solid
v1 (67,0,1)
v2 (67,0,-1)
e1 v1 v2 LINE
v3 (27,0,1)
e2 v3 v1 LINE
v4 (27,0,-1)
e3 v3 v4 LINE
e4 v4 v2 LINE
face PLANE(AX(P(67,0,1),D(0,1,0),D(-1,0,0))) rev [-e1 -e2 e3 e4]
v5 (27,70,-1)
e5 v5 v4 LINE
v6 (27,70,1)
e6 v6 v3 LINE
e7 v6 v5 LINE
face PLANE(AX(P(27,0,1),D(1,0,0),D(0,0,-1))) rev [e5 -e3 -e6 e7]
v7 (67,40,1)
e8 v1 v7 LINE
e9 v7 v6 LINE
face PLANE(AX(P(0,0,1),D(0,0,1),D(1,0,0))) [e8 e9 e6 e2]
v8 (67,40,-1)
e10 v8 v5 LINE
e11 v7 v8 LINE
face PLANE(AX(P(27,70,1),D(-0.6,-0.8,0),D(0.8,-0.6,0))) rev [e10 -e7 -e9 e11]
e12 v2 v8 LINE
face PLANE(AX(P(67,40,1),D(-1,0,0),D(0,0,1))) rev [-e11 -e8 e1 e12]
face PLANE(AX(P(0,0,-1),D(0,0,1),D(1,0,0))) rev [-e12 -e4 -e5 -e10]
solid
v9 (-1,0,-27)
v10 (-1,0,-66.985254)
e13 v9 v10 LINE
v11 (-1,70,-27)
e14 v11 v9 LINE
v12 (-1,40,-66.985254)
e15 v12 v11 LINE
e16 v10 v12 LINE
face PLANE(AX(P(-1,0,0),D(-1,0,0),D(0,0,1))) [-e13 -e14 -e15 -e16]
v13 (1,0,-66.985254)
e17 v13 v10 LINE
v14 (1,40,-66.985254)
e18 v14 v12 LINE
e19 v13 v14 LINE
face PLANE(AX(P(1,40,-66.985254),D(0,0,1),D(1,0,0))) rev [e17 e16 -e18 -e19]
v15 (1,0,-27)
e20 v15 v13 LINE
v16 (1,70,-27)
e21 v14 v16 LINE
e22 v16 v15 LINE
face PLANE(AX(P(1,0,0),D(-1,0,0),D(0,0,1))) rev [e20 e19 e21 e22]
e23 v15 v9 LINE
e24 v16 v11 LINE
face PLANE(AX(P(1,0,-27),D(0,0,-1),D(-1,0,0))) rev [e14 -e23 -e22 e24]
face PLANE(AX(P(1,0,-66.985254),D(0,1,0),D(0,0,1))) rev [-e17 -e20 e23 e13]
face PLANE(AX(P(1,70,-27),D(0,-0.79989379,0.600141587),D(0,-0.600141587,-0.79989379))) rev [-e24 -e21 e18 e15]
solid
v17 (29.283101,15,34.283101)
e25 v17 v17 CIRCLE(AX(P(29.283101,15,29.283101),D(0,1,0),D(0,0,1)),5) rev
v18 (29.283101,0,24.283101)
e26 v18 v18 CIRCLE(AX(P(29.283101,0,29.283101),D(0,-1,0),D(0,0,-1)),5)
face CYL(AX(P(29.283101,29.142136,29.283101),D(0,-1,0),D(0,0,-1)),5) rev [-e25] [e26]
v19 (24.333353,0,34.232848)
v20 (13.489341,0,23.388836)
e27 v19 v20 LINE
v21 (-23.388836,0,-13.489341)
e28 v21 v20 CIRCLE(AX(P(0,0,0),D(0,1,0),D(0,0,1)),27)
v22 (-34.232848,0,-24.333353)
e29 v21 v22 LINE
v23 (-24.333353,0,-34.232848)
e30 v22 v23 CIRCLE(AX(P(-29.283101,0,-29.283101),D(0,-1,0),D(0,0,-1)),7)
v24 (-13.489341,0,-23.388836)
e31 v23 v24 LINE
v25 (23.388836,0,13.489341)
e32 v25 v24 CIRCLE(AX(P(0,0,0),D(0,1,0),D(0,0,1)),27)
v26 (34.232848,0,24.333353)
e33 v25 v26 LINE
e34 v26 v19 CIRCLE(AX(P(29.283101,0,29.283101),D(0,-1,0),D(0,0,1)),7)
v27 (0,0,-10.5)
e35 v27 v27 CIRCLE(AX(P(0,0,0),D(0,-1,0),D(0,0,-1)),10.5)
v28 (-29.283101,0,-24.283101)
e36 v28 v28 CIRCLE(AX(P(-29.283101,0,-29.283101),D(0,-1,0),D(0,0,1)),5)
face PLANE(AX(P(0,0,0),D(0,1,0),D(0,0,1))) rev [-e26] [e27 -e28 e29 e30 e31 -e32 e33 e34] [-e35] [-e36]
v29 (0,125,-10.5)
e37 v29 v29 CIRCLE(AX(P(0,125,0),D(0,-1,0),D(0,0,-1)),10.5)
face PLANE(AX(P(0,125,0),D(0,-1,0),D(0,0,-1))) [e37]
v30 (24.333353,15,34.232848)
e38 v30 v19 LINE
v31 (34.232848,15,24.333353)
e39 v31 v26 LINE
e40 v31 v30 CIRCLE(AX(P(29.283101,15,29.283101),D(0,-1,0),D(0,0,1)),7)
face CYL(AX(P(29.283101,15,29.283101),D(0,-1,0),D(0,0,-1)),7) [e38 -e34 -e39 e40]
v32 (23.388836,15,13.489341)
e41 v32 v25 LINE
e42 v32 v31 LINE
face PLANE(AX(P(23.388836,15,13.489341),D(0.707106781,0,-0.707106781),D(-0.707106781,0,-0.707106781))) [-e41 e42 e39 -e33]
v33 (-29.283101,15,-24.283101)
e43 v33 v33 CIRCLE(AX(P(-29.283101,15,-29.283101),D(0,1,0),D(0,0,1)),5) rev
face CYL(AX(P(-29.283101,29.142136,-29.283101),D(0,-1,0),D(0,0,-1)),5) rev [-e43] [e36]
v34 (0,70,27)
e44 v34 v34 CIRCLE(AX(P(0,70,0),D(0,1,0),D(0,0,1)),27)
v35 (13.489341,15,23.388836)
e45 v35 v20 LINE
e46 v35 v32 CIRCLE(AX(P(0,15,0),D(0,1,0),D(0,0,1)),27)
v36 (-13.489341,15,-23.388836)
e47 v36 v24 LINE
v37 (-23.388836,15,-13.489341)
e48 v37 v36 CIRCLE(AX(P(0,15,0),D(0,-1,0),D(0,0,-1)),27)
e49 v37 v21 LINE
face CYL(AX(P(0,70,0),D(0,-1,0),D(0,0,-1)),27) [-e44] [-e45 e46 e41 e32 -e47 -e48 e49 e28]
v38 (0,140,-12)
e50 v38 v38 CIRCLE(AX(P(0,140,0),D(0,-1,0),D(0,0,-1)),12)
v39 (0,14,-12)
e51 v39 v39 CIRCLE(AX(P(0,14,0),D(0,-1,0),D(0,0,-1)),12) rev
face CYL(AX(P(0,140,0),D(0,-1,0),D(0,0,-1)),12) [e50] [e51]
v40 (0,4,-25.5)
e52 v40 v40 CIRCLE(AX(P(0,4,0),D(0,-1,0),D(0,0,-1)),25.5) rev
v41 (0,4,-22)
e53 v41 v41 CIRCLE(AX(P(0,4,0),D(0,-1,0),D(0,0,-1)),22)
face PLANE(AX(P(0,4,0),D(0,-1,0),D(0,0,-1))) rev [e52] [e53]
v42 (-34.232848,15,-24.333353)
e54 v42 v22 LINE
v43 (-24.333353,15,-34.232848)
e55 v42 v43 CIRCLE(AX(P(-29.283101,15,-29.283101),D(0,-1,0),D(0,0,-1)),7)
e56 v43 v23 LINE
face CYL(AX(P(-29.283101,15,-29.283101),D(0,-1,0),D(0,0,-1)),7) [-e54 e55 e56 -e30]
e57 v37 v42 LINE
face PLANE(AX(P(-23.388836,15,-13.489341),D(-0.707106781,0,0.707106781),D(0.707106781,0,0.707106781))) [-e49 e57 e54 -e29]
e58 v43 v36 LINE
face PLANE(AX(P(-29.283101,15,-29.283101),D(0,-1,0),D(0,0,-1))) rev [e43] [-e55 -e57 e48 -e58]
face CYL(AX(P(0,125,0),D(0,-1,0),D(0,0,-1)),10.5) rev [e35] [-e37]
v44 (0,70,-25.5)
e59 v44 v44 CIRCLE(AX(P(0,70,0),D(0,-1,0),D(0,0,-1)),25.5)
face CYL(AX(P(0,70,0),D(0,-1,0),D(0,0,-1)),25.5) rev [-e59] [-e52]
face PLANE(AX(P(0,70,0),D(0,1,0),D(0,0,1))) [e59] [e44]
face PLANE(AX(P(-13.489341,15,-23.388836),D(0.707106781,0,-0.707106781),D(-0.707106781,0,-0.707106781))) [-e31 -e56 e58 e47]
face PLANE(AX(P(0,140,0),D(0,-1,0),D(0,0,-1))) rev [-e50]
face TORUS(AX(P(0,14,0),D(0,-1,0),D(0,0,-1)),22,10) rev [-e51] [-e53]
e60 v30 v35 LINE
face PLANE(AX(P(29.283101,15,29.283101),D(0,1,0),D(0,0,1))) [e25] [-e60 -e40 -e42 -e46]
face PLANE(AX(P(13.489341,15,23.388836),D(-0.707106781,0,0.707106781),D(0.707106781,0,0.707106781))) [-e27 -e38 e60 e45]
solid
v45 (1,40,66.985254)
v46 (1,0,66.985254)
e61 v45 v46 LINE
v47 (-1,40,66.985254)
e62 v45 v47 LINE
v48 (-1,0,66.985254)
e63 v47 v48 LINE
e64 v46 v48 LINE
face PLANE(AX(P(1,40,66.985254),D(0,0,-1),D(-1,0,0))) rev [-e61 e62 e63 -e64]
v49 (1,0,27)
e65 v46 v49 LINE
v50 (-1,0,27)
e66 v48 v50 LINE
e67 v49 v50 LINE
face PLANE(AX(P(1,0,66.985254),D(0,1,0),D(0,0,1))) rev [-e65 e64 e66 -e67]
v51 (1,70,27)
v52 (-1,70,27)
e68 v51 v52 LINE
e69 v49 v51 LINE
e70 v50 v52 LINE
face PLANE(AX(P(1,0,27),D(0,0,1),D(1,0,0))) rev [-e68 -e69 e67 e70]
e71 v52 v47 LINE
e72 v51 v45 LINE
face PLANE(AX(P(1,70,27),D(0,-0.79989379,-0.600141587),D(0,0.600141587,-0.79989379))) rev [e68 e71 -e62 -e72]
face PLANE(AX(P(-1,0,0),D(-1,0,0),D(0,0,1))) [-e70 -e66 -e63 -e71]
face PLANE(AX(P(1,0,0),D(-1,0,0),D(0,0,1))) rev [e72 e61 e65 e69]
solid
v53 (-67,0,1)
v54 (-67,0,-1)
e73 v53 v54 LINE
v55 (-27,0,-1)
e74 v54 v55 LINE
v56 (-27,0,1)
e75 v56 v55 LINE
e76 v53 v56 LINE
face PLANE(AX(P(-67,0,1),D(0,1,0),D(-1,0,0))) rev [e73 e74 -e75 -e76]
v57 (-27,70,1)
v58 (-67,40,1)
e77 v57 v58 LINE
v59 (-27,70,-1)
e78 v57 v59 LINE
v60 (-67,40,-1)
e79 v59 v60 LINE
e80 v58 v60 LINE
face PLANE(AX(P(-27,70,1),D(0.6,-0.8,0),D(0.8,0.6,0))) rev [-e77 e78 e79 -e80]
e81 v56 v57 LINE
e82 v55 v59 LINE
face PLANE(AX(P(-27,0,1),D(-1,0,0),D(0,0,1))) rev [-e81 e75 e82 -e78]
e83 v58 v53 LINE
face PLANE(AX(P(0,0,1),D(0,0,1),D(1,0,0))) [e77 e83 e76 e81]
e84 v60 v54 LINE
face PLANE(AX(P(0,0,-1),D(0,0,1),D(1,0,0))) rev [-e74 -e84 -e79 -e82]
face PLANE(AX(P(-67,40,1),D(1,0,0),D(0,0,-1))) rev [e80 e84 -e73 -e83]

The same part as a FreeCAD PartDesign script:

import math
import FreeCAD as App
import Part
import Sketcher
Q = App.Units.Quantity


def edges_at(feature, points):
    """Names of the edges that pass closest to the given points."""
    edges = feature.Shape.Edges
    near = lambda p: min(range(len(edges)), key=lambda i: edges[i].distToShape(Part.Vertex(*p))[0])
    return sorted({f"Edge{near(p) + 1}" for p in points})


def add_polygon(sketch, points):
    """Adds a closed chain of lines whose ends are joined by coincident constraints."""
    first, n = sketch.GeometryCount, len(points)
    for a, b in zip(points, points[1:] + points[:1]):
        sketch.addGeometry(Part.LineSegment(App.Vector(*a, 0), App.Vector(*b, 0)), False)
    for i in range(n):
        sketch.addConstraint(Sketcher.Constraint("Coincident", first + i, 2, first + (i + 1) % n, 1))

doc = App.newDocument("Part")
params = doc.addObject("Spreadsheet::Sheet", "Params")
for row, (alias, value) in enumerate([
    ("sketch1_diameter", "54 mm"),
    ("pad1_length", "70 mm"),
    ("sketch2_diameter", "51 mm"),
    ("sketch3_diameter", "54 mm"),
    ("pad2_length", "4 mm"),
    ("sketch4_diameter", "24 mm"),
    ("pad3_length", "140 mm"),
    ("sketch5_diameter", "21 mm"),
    ("pocket2_length", "125 mm"),
    ("fillet_radius", "10 mm"),
    ("sketch6_radius", "7 mm"),
    ("pad4_length", "15 mm"),
    ("sketch7_diameter", "10 mm"),
    ("pocket3_length", "15 mm"),
    ("sketch8_width", "40 mm"),
    ("sketch8_height", "70 mm"),
    ("pad5_length", "2 mm"),
    ("sketch9_width", "40 mm"),
    ("sketch9_height", "70 mm"),
    ("pad6_length", "2 mm"),
    ("sketch10_width", "40 mm"),
    ("sketch10_width2", "70 mm"),
    ("pad7_length", "2 mm"),
    ("sketch11_width", "70 mm"),
    ("sketch11_width2", "40 mm"),
    ("pad8_length", "2 mm"),
], start=1):
    params.set(f"A{row}", alias)
    params.set(f"B{row}", "=" + value)
    params.setAlias(f"B{row}", alias)

body = doc.addObject("PartDesign::Body", "Body")

sketch1 = body.newObject("Sketcher::SketchObject", "Sketch")
sketch1.AttachmentSupport = (doc.getObject("XZ_Plane"), [""])
sketch1.MapMode = "FlatFace"
sketch1.addGeometry(Part.Circle(App.Vector(0, 0, 0), App.Vector(0, 0, 1), 27), False)
sketch1.addConstraint([
    Sketcher.Constraint("Coincident", 0, 3, -1, 1),
    Sketcher.Constraint("Diameter", 0, Q("54 mm")),
])
sketch1.setExpression("Constraints[1]", "Params.sketch1_diameter")
pad1 = body.newObject("PartDesign::Pad", "Pad")
pad1.Profile = sketch1
pad1.setExpression("Length", "Params.pad1_length")
pad1.Reversed = True

sketch2 = body.newObject("Sketcher::SketchObject", "Sketch001")
sketch2.AttachmentSupport = (doc.getObject("XZ_Plane"), [""])
sketch2.MapMode = "FlatFace"
sketch2.addGeometry(Part.Circle(App.Vector(0, 0, 0), App.Vector(0, 0, 1), 25.5), False)
sketch2.addConstraint([
    Sketcher.Constraint("Coincident", 0, 3, -1, 1),
    Sketcher.Constraint("Diameter", 0, Q("51 mm")),
])
sketch2.setExpression("Constraints[1]", "Params.sketch2_diameter")
pocket1 = body.newObject("PartDesign::Pocket", "Pocket")
pocket1.Profile = sketch2
pocket1.Type = "ThroughAll"

sketch3 = body.newObject("Sketcher::SketchObject", "Sketch002")
sketch3.AttachmentSupport = (doc.getObject("XZ_Plane"), [""])
sketch3.MapMode = "FlatFace"
sketch3.addGeometry(Part.Circle(App.Vector(0, 0, 0), App.Vector(0, 0, 1), 27), False)
sketch3.addConstraint([
    Sketcher.Constraint("Coincident", 0, 3, -1, 1),
    Sketcher.Constraint("Diameter", 0, Q("54 mm")),
])
sketch3.setExpression("Constraints[1]", "Params.sketch3_diameter")
pad2 = body.newObject("PartDesign::Pad", "Pad001")
pad2.Profile = sketch3
pad2.setExpression("Length", "Params.pad2_length")
pad2.Reversed = True

sketch4 = body.newObject("Sketcher::SketchObject", "Sketch003")
sketch4.AttachmentSupport = (doc.getObject("XZ_Plane"), [""])
sketch4.MapMode = "FlatFace"
sketch4.addGeometry(Part.Circle(App.Vector(0, 0, 0), App.Vector(0, 0, 1), 12), False)
sketch4.addConstraint([
    Sketcher.Constraint("Coincident", 0, 3, -1, 1),
    Sketcher.Constraint("Diameter", 0, Q("24 mm")),
])
sketch4.setExpression("Constraints[1]", "Params.sketch4_diameter")
pad3 = body.newObject("PartDesign::Pad", "Pad002")
pad3.Profile = sketch4
pad3.setExpression("Length", "Params.pad3_length")
pad3.Reversed = True

sketch5 = body.newObject("Sketcher::SketchObject", "Sketch004")
sketch5.AttachmentSupport = (doc.getObject("XZ_Plane"), [""])
sketch5.MapMode = "FlatFace"
sketch5.addGeometry(Part.Circle(App.Vector(0, 0, 0), App.Vector(0, 0, 1), 10.5), False)
sketch5.addConstraint([
    Sketcher.Constraint("Coincident", 0, 3, -1, 1),
    Sketcher.Constraint("Diameter", 0, Q("21 mm")),
])
sketch5.setExpression("Constraints[1]", "Params.sketch5_diameter")
pocket2 = body.newObject("PartDesign::Pocket", "Pocket001")
pocket2.Profile = sketch5
pocket2.setExpression("Length", "Params.pocket2_length")
doc.recompute()

fillet = body.newObject("PartDesign::Fillet", "Fillet")
fillet.Base = (pocket2, edges_at(pocket2, [(0, 4, 12)]))
fillet.setExpression("Radius", "Params.fillet_radius")

sketch6 = body.newObject("Sketcher::SketchObject", "Sketch005")
sketch6.AttachmentSupport = (doc.getObject("XZ_Plane"), [""])
sketch6.MapMode = "FlatFace"
sketch6.addGeometry([
    Part.LineSegment(App.Vector(24.333353, 34.232848, 0), App.Vector(13.489341, 23.388836, 0)),
    Part.LineSegment(App.Vector(13.489341, 23.388836, 0), App.Vector(23.388836, 13.489341, 0)),
    Part.LineSegment(App.Vector(23.388836, 13.489341, 0), App.Vector(34.232848, 24.333353, 0)),
    Part.ArcOfCircle(Part.Circle(App.Vector(29.283101, 29.283101, 0), App.Vector(0, 0, 1), 7), math.radians(-45), math.radians(135)),
    Part.LineSegment(App.Vector(-23.388836, -13.489341, 0), App.Vector(-34.232848, -24.333353, 0)),
    Part.ArcOfCircle(Part.Circle(App.Vector(-29.283101, -29.283101, 0), App.Vector(0, 0, 1), 7), math.radians(135), math.radians(315)),
    Part.LineSegment(App.Vector(-24.333353, -34.232848, 0), App.Vector(-13.489341, -23.388836, 0)),
    Part.LineSegment(App.Vector(-13.489341, -23.388836, 0), App.Vector(-23.388836, -13.489341, 0)),
], False)
sketch6.addConstraint([
    Sketcher.Constraint("Coincident", 0, 2, 1, 1),
    Sketcher.Constraint("Coincident", 1, 2, 2, 1),
    Sketcher.Constraint("Tangent", 2, 2, 3, 1),
    Sketcher.Constraint("Tangent", 3, 2, 0, 1),
    Sketcher.Constraint("Tangent", 4, 2, 5, 1),
    Sketcher.Constraint("Tangent", 5, 2, 6, 1),
    Sketcher.Constraint("Coincident", 6, 2, 7, 1),
    Sketcher.Constraint("Coincident", 7, 2, 4, 1),
    Sketcher.Constraint("Equal", 3, 5),
    Sketcher.Constraint("Symmetric", 3, 3, 5, 3, -1, 1),
    Sketcher.Constraint("Symmetric", 0, 2, 6, 2, -1, 1),
    Sketcher.Constraint("Symmetric", 1, 2, 7, 2, -1, 1),
    Sketcher.Constraint("Perpendicular", 0, 1),
    Sketcher.Constraint("Perpendicular", 1, 2),
    Sketcher.Constraint("Radius", 3, Q("7 mm")),
    Sketcher.Constraint("Angle", 0, Q("-135 deg")),
    Sketcher.Constraint("DistanceX", -1, 1, 3, 3, Q("29.283101 mm")),
    Sketcher.Constraint("DistanceY", -1, 1, 3, 3, Q("29.283101 mm")),
    Sketcher.Constraint("Distance", 0, Q("15.335749 mm")),
])
sketch6.setExpression("Constraints[14]", "Params.sketch6_radius")
pad4 = body.newObject("PartDesign::Pad", "Pad003")
pad4.Profile = sketch6
pad4.setExpression("Length", "Params.pad4_length")
pad4.Reversed = True

sketch7 = body.newObject("Sketcher::SketchObject", "Sketch006")
sketch7.AttachmentSupport = (doc.getObject("XZ_Plane"), [""])
sketch7.MapMode = "FlatFace"
sketch7.addGeometry([
    Part.Circle(App.Vector(29.283101, 29.283101, 0), App.Vector(0, 0, 1), 5),
    Part.Circle(App.Vector(-29.283101, -29.283101, 0), App.Vector(0, 0, 1), 5),
], False)
sketch7.addConstraint([
    Sketcher.Constraint("Equal", 0, 1),
    Sketcher.Constraint("Symmetric", 0, 3, 1, 3, -1, 1),
    Sketcher.Constraint("Diameter", 0, Q("10 mm")),
    Sketcher.Constraint("DistanceX", -1, 1, 0, 3, Q("29.283101 mm")),
    Sketcher.Constraint("DistanceY", -1, 1, 0, 3, Q("29.283101 mm")),
])
sketch7.setExpression("Constraints[2]", "Params.sketch7_diameter")
pocket3 = body.newObject("PartDesign::Pocket", "Pocket002")
pocket3.Profile = sketch7
pocket3.setExpression("Length", "Params.pocket3_length")
body2 = doc.addObject("PartDesign::Body", "Body001")

sketch8 = body2.newObject("Sketcher::SketchObject", "Sketch007")
sketch8.AttachmentSupport = (doc.getObject("XY_Plane001"), [""])
sketch8.MapMode = "FlatFace"
add_polygon(sketch8, [(67, 40), (27, 70), (27, 0), (67, 0)])
sketch8.addConstraint([
    Sketcher.Constraint("Vertical", 1),
    Sketcher.Constraint("Horizontal", 2),
    Sketcher.Constraint("Vertical", 3),
    Sketcher.Constraint("PointOnObject", 1, 2, -1),
    Sketcher.Constraint("Equal", 2, 3),
    Sketcher.Constraint("DistanceX", 2, 1, 2, 2, Q("40 mm")),
    Sketcher.Constraint("DistanceY", 1, 2, 1, 1, Q("70 mm")),
    Sketcher.Constraint("DistanceX", -1, 1, 0, 2, Q("27 mm")),
])
sketch8.setExpression("Constraints[9]", "Params.sketch8_width")
sketch8.setExpression("Constraints[10]", "Params.sketch8_height")
pad5 = body2.newObject("PartDesign::Pad", "Pad004")
pad5.Profile = sketch8
pad5.setExpression("Length", "Params.pad5_length")
pad5.Midplane = True
body3 = doc.addObject("PartDesign::Body", "Body002")

sketch9 = body3.newObject("Sketcher::SketchObject", "Sketch008")
sketch9.AttachmentSupport = (doc.getObject("XY_Plane002"), [""])
sketch9.MapMode = "FlatFace"
add_polygon(sketch9, [(-67, 0), (-27, 0), (-27, 70), (-67, 40)])
sketch9.addConstraint([
    Sketcher.Constraint("Horizontal", 0),
    Sketcher.Constraint("Vertical", 1),
    Sketcher.Constraint("Vertical", 3),
    Sketcher.Constraint("PointOnObject", 0, 2, -1),
    Sketcher.Constraint("Equal", 0, 3),
    Sketcher.Constraint("DistanceX", 0, 1, 0, 2, Q("40 mm")),
    Sketcher.Constraint("DistanceY", 1, 1, 1, 2, Q("70 mm")),
    Sketcher.Constraint("DistanceX", 0, 2, -1, 1, Q("27 mm")),
])
sketch9.setExpression("Constraints[9]", "Params.sketch9_width")
sketch9.setExpression("Constraints[10]", "Params.sketch9_height")
pad6 = body3.newObject("PartDesign::Pad", "Pad005")
pad6.Profile = sketch9
pad6.setExpression("Length", "Params.pad6_length")
pad6.Midplane = True
body4 = doc.addObject("PartDesign::Body", "Body003")

sketch10 = body4.newObject("Sketcher::SketchObject", "Sketch009")
sketch10.AttachmentSupport = (doc.getObject("YZ_Plane003"), [""])
sketch10.MapMode = "FlatFace"
add_polygon(sketch10, [(70, 27), (40, 66.985254), (0, 66.985254), (0, 27)])
sketch10.addConstraint([
    Sketcher.Constraint("Horizontal", 1),
    Sketcher.Constraint("Vertical", 2),
    Sketcher.Constraint("Horizontal", 3),
    Sketcher.Constraint("PointOnObject", 1, 2, -2),
    Sketcher.Constraint("DistanceX", 1, 2, 1, 1, Q("40 mm")),
    Sketcher.Constraint("DistanceX", 3, 1, 3, 2, Q("70 mm")),
    Sketcher.Constraint("DistanceY", -1, 1, 2, 2, Q("27 mm")),
    Sketcher.Constraint("DistanceY", 2, 2, 2, 1, Q("39.985254 mm")),
])
sketch10.setExpression("Constraints[8]", "Params.sketch10_width")
sketch10.setExpression("Constraints[9]", "Params.sketch10_width2")
pad7 = body4.newObject("PartDesign::Pad", "Pad006")
pad7.Profile = sketch10
pad7.setExpression("Length", "Params.pad7_length")
pad7.Midplane = True
body5 = doc.addObject("PartDesign::Body", "Body004")

sketch11 = body5.newObject("Sketcher::SketchObject", "Sketch010")
sketch11.AttachmentSupport = (doc.getObject("YZ_Plane004"), [""])
sketch11.MapMode = "FlatFace"
add_polygon(sketch11, [(70, -27), (0, -27), (0, -66.985254), (40, -66.985254)])
sketch11.addConstraint([
    Sketcher.Constraint("Horizontal", 0),
    Sketcher.Constraint("Vertical", 1),
    Sketcher.Constraint("Horizontal", 2),
    Sketcher.Constraint("PointOnObject", 0, 2, -2),
    Sketcher.Constraint("DistanceX", 0, 2, 0, 1, Q("70 mm")),
    Sketcher.Constraint("DistanceX", 2, 1, 2, 2, Q("40 mm")),
    Sketcher.Constraint("DistanceY", 0, 2, -1, 1, Q("27 mm")),
    Sketcher.Constraint("DistanceY", 1, 2, 1, 1, Q("39.985254 mm")),
])
sketch11.setExpression("Constraints[8]", "Params.sketch11_width")
sketch11.setExpression("Constraints[9]", "Params.sketch11_width2")
pad8 = body5.newObject("PartDesign::Pad", "Pad007")
pad8.Profile = sketch11
pad8.setExpression("Length", "Params.pad8_length")
pad8.Midplane = True

doc.recompute()
